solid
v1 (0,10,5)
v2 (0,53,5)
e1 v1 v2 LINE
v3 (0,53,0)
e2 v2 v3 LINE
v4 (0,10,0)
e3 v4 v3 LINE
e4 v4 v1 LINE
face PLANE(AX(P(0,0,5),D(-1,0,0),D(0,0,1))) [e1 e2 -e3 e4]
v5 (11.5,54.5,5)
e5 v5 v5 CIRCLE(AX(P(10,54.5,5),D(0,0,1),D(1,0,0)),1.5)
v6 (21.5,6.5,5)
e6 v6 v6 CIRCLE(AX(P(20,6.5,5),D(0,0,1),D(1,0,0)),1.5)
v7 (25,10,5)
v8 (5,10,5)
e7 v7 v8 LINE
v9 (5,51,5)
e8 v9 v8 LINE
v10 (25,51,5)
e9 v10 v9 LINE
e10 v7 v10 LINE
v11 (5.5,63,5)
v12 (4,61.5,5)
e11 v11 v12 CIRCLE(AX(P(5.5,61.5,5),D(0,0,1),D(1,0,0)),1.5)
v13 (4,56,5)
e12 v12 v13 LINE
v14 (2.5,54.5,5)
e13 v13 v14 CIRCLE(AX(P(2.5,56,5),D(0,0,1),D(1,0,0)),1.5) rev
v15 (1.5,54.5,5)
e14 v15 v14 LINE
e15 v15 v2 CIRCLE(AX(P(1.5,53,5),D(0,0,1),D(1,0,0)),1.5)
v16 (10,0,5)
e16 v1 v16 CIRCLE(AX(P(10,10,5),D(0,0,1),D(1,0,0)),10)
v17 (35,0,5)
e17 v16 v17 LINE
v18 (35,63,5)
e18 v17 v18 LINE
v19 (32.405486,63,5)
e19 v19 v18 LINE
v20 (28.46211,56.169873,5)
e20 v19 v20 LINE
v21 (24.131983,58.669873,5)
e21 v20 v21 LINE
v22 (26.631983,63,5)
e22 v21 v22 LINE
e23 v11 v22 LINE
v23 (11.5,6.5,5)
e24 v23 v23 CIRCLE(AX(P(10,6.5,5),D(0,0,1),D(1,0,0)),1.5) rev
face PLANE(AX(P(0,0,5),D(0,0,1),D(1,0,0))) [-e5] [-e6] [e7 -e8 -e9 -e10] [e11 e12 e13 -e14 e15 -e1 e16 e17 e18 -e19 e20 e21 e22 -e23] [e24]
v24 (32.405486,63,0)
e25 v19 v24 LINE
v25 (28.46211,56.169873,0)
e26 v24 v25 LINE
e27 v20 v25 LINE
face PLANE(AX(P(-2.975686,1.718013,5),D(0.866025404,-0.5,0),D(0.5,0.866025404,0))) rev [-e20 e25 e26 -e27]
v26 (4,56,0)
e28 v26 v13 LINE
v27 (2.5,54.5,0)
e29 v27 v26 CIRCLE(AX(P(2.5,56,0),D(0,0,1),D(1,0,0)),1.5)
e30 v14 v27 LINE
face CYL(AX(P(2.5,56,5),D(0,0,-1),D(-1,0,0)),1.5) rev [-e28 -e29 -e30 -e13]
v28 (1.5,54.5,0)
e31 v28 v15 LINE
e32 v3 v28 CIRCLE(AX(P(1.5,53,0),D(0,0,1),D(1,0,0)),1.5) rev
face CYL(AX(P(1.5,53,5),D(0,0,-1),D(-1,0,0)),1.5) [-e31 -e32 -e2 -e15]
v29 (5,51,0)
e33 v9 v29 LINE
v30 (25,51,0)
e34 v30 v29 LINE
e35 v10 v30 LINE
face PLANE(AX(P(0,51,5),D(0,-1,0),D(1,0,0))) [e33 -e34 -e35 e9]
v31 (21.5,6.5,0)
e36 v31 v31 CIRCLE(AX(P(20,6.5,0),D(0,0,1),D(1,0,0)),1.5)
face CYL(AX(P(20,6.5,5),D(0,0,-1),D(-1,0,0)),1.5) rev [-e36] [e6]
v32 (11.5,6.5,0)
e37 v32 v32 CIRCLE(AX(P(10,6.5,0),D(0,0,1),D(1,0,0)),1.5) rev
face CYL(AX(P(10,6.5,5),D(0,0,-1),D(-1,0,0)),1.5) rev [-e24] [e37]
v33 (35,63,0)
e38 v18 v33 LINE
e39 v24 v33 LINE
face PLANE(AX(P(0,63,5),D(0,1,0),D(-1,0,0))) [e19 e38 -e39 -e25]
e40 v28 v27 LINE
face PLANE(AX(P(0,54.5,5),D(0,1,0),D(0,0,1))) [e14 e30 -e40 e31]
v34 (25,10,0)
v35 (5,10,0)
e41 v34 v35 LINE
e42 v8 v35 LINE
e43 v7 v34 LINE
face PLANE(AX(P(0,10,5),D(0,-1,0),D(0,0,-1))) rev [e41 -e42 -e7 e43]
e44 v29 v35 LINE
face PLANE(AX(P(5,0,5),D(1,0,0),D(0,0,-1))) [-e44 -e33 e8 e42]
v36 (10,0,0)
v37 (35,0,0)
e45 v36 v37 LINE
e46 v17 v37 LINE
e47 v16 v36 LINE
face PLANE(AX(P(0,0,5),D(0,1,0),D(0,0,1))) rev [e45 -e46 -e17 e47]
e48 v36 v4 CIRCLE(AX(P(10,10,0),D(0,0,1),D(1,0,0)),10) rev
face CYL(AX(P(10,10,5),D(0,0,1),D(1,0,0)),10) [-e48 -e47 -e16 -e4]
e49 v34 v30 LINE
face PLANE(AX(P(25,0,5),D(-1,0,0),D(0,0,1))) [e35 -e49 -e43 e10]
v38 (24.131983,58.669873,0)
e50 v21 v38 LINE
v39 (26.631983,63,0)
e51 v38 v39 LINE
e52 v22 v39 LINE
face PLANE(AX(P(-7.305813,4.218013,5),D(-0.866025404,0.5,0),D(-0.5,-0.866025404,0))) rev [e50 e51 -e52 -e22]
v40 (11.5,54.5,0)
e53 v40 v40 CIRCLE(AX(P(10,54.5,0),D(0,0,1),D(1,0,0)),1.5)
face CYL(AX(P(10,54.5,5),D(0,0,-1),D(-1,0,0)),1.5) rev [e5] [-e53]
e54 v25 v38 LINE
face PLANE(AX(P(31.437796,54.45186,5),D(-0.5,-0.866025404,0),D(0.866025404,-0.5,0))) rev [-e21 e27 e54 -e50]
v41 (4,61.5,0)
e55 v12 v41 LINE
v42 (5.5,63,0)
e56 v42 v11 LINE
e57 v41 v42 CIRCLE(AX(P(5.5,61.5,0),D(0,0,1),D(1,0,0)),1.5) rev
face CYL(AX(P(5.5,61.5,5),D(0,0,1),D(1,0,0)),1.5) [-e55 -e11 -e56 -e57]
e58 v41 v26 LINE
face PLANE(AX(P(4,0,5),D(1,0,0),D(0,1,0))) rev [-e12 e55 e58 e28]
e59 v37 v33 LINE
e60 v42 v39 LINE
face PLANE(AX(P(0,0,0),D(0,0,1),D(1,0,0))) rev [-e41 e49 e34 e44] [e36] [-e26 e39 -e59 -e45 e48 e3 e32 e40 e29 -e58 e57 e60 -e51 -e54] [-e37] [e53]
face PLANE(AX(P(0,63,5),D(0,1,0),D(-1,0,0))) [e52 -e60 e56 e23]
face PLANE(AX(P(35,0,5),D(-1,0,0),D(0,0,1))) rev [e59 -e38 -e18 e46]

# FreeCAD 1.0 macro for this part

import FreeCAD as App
import Part
import Sketcher
from FreeCAD import Vector
Q = App.Units.Quantity


def edges_at(feature, points):
    """Names of the edges that pass closest to the given points."""
    edges = feature.Shape.Edges
    near = lambda p: min(range(len(edges)), key=lambda i: edges[i].distToShape(Part.Vertex(*p))[0])
    return sorted({f"Edge{near(p) + 1}" for p in points})

doc = App.newDocument("Part")
body = doc.addObject("PartDesign::Body", "Body")

# Sketch on XY plane
sketch1 = body.newObject("Sketcher::SketchObject", "Sketch")
sketch1.AttachmentSupport = (doc.getObject("XY_Plane"), [""])
sketch1.MapMode = "FlatFace"
sketch1.addGeometry([
    Part.LineSegment(Vector(0, 0, 0), Vector(35, 0, 0)),  # 0
    Part.LineSegment(Vector(35, 0, 0), Vector(35, 63, 0)),  # 1
    Part.LineSegment(Vector(35, 63, 0), Vector(32.4, 63, 0)),  # 2
    Part.LineSegment(Vector(32.4, 63, 0), Vector(28.5, 56.2, 0)),  # 3
    Part.LineSegment(Vector(28.5, 56.2, 0), Vector(24.1, 58.7, 0)),  # 4
    Part.LineSegment(Vector(24.1, 58.7, 0), Vector(26.6, 63, 0)),  # 5
    Part.LineSegment(Vector(26.6, 63, 0), Vector(4, 63, 0)),  # 6
    Part.LineSegment(Vector(4, 63, 0), Vector(4, 54.5, 0)),  # 7
    Part.LineSegment(Vector(4, 54.5, 0), Vector(0, 54.5, 0)),  # 8
    Part.LineSegment(Vector(0, 54.5, 0), Vector(0, 0, 0)),  # 9
    Part.Circle(Vector(10, 6.5, 0), Vector(0, 0, 1), 1.5),  # 10
    Part.Circle(Vector(20, 6.5, 0), Vector(0, 0, 1), 1.5),  # 11
    Part.Circle(Vector(10, 54.5, 0), Vector(0, 0, 1), 1.5),  # 12
    Part.LineSegment(Vector(5, 51, 0), Vector(25, 51, 0)),  # 13
    Part.LineSegment(Vector(25, 51, 0), Vector(25, 10, 0)),  # 14
    Part.LineSegment(Vector(25, 10, 0), Vector(5, 10, 0)),  # 15
    Part.LineSegment(Vector(5, 10, 0), Vector(5, 51, 0)),  # 16
], False)
sketch1.addConstraint([
    Sketcher.Constraint("Coincident", 0, 2, 1, 1),
    Sketcher.Constraint("Coincident", 1, 2, 2, 1),
    Sketcher.Constraint("Coincident", 2, 2, 3, 1),
    Sketcher.Constraint("Coincident", 3, 2, 4, 1),
    Sketcher.Constraint("Coincident", 4, 2, 5, 1),
    Sketcher.Constraint("Coincident", 5, 2, 6, 1),
    Sketcher.Constraint("Coincident", 6, 2, 7, 1),
    Sketcher.Constraint("Coincident", 7, 2, 8, 1),
    Sketcher.Constraint("Coincident", 8, 2, 9, 1),
    Sketcher.Constraint("Coincident", 9, 2, 0, 1),
    Sketcher.Constraint("Coincident", 13, 2, 14, 1),
    Sketcher.Constraint("Coincident", 14, 2, 15, 1),
    Sketcher.Constraint("Coincident", 15, 2, 16, 1),
    Sketcher.Constraint("Coincident", 16, 2, 13, 1),
    Sketcher.Constraint("Horizontal", 0),
    Sketcher.Constraint("Vertical", 1),
    Sketcher.Constraint("Horizontal", 2),
    Sketcher.Constraint("Horizontal", 6),
    Sketcher.Constraint("Vertical", 7),
    Sketcher.Constraint("Horizontal", 8),
    Sketcher.Constraint("Vertical", 9),
    Sketcher.Constraint("Horizontal", 13),
    Sketcher.Constraint("Vertical", 14),
    Sketcher.Constraint("Horizontal", 15),
    Sketcher.Constraint("Vertical", 16),
    Sketcher.Constraint("Coincident", 9, 2, -1, 1),
    Sketcher.Constraint("Equal", 10, 11),
    Sketcher.Constraint("Equal", 11, 12),
    Sketcher.Constraint("Perpendicular", 3, 4),
    Sketcher.Constraint("Perpendicular", 4, 5),
    Sketcher.Constraint("Horizontal", 10, 3, 11, 3),
    Sketcher.Constraint("Horizontal", 2, 2, 5, 2),
    Sketcher.Constraint("Horizontal", 12, 3, 7, 2),
    Sketcher.Constraint("Vertical", 10, 3, 12, 3),
    Sketcher.Constraint("Equal", 4, 5),
    Sketcher.Constraint("Diameter", 10, 3.0),
    Sketcher.Constraint("DistanceX", 0, 1, 0, 2, 35.0),
    Sketcher.Constraint("DistanceX", 8, 2, 8, 1, 4.0),
    Sketcher.Constraint("DistanceX", 13, 1, 13, 2, 20.0),
    Sketcher.Constraint("DistanceY", 1, 1, 1, 2, 63.0),
    Sketcher.Constraint("DistanceY", 14, 2, 14, 1, 41.0),
    Sketcher.Constraint("Angle", 3, Q("-120 deg")),
    Sketcher.Constraint("Distance", 4, 5.0),
    Sketcher.Constraint("DistanceY", 7, 2, 7, 1, 8.5),
    Sketcher.Constraint("DistanceX", -1, 1, 10, 3, 10.0),
    Sketcher.Constraint("DistanceX", -1, 1, 11, 3, 20.0),
    Sketcher.Constraint("DistanceX", -1, 1, 13, 2, 25.0),
    Sketcher.Constraint("DistanceY", -1, 1, 13, 2, 51.0),
    Sketcher.Constraint("DistanceY", 10, 3, 12, 3, 48.0),
    Sketcher.Constraint("DistanceX", 2, 2, 2, 1, 2.594514),
])
pad1 = body.newObject("PartDesign::Pad", "Pad")
pad1.Profile = sketch1
pad1.Length = 5
doc.recompute()

fillet = body.newObject("PartDesign::Fillet", "Fillet")
fillet.Base = (pad1, edges_at(pad1, [(0, 0, 2.5)]))
fillet.Radius = 10
doc.recompute()

fillet2 = body.newObject("PartDesign::Fillet", "Fillet001")
fillet2.Base = (fillet, edges_at(fillet, [(0, 54.5, 2.5), (4, 54.5, 2.5), (4, 63, 2.5)]))
fillet2.Radius = 1.5

doc.recompute()
